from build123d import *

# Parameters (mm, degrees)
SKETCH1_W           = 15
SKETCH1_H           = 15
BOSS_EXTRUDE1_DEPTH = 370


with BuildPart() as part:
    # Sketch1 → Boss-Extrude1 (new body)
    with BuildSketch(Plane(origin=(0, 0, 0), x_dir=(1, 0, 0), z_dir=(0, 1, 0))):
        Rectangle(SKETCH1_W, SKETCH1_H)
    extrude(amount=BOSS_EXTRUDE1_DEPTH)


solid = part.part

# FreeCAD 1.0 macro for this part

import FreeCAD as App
import Part
import Sketcher
Q = App.Units.Quantity


def add_polygon(sketch, points):
    """Adds a closed chain of lines whose ends are joined by coincident constraints."""
    first, n = sketch.GeometryCount, len(points)
    for a, b in zip(points, points[1:] + points[:1]):
        sketch.addGeometry(Part.LineSegment(App.Vector(*a, 0), App.Vector(*b, 0)), False)
    for i in range(n):
        sketch.addConstraint(Sketcher.Constraint("Coincident", first + i, 2, first + (i + 1) % n, 1))

doc = App.newDocument("Part")
params = doc.addObject("Spreadsheet::Sheet", "Params")
for row, (alias, value) in enumerate([
    ("sketch1_width", "15 mm"),
    ("pad1_length", "370 mm"),
], start=1):
    params.set(f"A{row}", alias)
    params.set(f"B{row}", "=" + value)
    params.setAlias(f"B{row}", alias)

body = doc.addObject("PartDesign::Body", "Body")

# Sketch on XZ plane
sketch1 = body.newObject("Sketcher::SketchObject", "Sketch")
sketch1.AttachmentSupport = (doc.getObject("XZ_Plane"), [""])
sketch1.MapMode = "FlatFace"
add_polygon(sketch1, [(-8, -8), (-8, 8), (8, 8), (8, -8)])  # lines 0-3
sketch1.addConstraint([
    Sketcher.Constraint("Vertical", 0),
    Sketcher.Constraint("Horizontal", 1),
    Sketcher.Constraint("Vertical", 2),
    Sketcher.Constraint("Horizontal", 3),
    Sketcher.Constraint("Symmetric", 0, 2, 2, 2, -1, 1),
    Sketcher.Constraint("Equal", 3, 0),
    Sketcher.Constraint("DistanceX", 1, 1, 1, 2, Q("15 mm")),
])
sketch1.setExpression("Constraints[10]", "Params.sketch1_width")
pad1 = body.newObject("PartDesign::Pad", "Pad")
pad1.Profile = sketch1
pad1.setExpression("Length", "Params.pad1_length")
pad1.Reversed = True

doc.recompute()
